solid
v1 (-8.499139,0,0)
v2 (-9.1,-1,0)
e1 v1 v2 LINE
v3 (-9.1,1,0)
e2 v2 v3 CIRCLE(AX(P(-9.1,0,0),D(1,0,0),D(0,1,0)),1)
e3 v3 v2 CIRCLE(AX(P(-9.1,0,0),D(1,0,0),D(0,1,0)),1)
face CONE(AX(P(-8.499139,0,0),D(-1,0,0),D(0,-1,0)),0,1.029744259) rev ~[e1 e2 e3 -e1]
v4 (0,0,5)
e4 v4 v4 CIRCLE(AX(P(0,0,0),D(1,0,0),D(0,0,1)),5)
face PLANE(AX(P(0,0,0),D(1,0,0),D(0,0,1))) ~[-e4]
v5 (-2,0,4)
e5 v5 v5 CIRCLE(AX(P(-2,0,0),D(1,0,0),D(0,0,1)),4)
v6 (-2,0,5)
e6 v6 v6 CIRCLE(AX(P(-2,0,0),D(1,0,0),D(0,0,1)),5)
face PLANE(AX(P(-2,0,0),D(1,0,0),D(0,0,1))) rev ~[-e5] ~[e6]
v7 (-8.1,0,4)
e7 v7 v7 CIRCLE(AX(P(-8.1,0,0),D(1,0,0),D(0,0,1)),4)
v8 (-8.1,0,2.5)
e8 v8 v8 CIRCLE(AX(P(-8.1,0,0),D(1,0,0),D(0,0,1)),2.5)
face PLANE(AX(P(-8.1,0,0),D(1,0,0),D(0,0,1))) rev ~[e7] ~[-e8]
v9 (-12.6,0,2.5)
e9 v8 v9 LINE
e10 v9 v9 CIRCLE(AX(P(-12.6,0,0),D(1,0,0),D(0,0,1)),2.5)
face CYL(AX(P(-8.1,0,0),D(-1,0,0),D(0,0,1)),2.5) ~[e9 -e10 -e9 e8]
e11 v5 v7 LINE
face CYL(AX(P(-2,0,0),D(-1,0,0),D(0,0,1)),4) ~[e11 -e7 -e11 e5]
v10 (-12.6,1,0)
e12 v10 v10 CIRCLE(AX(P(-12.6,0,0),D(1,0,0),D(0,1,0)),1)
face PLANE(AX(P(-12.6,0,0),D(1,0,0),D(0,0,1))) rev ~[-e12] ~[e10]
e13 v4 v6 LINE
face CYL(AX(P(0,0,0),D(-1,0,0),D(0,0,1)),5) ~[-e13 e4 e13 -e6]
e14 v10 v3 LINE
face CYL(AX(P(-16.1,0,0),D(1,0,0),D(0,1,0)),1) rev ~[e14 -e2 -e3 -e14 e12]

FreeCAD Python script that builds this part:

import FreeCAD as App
import Part
import Sketcher

V = App.Vector
Q = App.Units.Quantity

doc = App.newDocument("Part")
body = doc.addObject("PartDesign::Body", "Body")

# Sketch on XZ plane
sketch1 = body.newObject("Sketcher::SketchObject", "Sketch")
sketch1.AttachmentSupport = (doc.getObject("XZ_Plane"), [""])
sketch1.MapMode = "FlatFace"
sketch1.addGeometry(Part.LineSegment(V(-12.6, 0, 0), V(0, 0, 0)), False)
sketch1.addGeometry(Part.LineSegment(V(0, 0, 0), V(0, 5, 0)), False)
sketch1.addGeometry(Part.LineSegment(V(0, 5, 0), V(-2, 5, 0)), False)
sketch1.addGeometry(Part.LineSegment(V(-2, 5, 0), V(-2, 4, 0)), False)
sketch1.addGeometry(Part.LineSegment(V(-2, 4, 0), V(-8.1, 4, 0)), False)
sketch1.addGeometry(Part.LineSegment(V(-8.1, 4, 0), V(-8.1, 2.5, 0)), False)
sketch1.addGeometry(Part.LineSegment(V(-8.1, 2.5, 0), V(-12.6, 2.5, 0)), False)
sketch1.addGeometry(Part.LineSegment(V(-12.6, 2.5, 0), V(-12.6, 0, 0)), False)
sketch1.addConstraint(Sketcher.Constraint("Coincident", 0, 2, 1, 1))
sketch1.addConstraint(Sketcher.Constraint("Coincident", 1, 2, 2, 1))
sketch1.addConstraint(Sketcher.Constraint("Coincident", 2, 2, 3, 1))
sketch1.addConstraint(Sketcher.Constraint("Coincident", 3, 2, 4, 1))
sketch1.addConstraint(Sketcher.Constraint("Coincident", 4, 2, 5, 1))
sketch1.addConstraint(Sketcher.Constraint("Coincident", 5, 2, 6, 1))
sketch1.addConstraint(Sketcher.Constraint("Coincident", 6, 2, 7, 1))
sketch1.addConstraint(Sketcher.Constraint("Coincident", 7, 2, 0, 1))
sketch1.addConstraint(Sketcher.Constraint("Horizontal", 0))
sketch1.addConstraint(Sketcher.Constraint("Vertical", 1))
sketch1.addConstraint(Sketcher.Constraint("Horizontal", 2))
sketch1.addConstraint(Sketcher.Constraint("Vertical", 3))
sketch1.addConstraint(Sketcher.Constraint("Horizontal", 4))
sketch1.addConstraint(Sketcher.Constraint("Vertical", 5))
sketch1.addConstraint(Sketcher.Constraint("Horizontal", 6))
sketch1.addConstraint(Sketcher.Constraint("Vertical", 7))
sketch1.addConstraint(Sketcher.Constraint("Coincident", 0, 2, -1, 1))
sketch1.addConstraint(Sketcher.Constraint("DistanceX", 2, 2, 2, 1, Q("2 mm")))
sketch1.addConstraint(Sketcher.Constraint("DistanceY", 1, 1, 1, 2, Q("5 mm")))
sketch1.addConstraint(Sketcher.Constraint("DistanceY", 3, 2, 3, 1, Q("1 mm")))
sketch1.addConstraint(Sketcher.Constraint("DistanceX", 0, 1, 0, 2, Q("12.6 mm")))
sketch1.addConstraint(Sketcher.Constraint("DistanceX", 4, 2, 4, 1, Q("6.1 mm")))
sketch1.addConstraint(Sketcher.Constraint("DistanceY", 5, 2, 5, 1, Q("1.5 mm")))
revolution = body.newObject("PartDesign::Revolution", "Revolution")
revolution.Profile = sketch1
revolution.ReferenceAxis = (sketch1, ["H_Axis"])
revolution.Angle = 360

# Sketch on YZ plane
sketch2 = body.newObject("Sketcher::SketchObject", "Sketch001")
sketch2.AttachmentSupport = (doc.getObject("YZ_Plane"), [""])
sketch2.MapMode = "FlatFace"
sketch2.AttachmentOffset = App.Placement(V(0, 0, -12.6), App.Rotation())
sketch2.addGeometry(Part.Circle(V(0, 0, 0), V(0, 0, 1), 1), False)
sketch2.addConstraint(Sketcher.Constraint("Coincident", 0, 3, -1, 1))
sketch2.addConstraint(Sketcher.Constraint("Diameter", 0, Q("2 mm")))
doc.recompute()
hole = body.newObject("PartDesign::Hole", "Hole")
hole.Profile = sketch2
hole.ThreadType = "None"
hole.Diameter = 2
hole.DepthType = "Dimension"
hole.Depth = 3.5
hole.DrillPoint = "Angled"
hole.DrillPointAngle = 118
hole.Reversed = True

doc.recompute()
